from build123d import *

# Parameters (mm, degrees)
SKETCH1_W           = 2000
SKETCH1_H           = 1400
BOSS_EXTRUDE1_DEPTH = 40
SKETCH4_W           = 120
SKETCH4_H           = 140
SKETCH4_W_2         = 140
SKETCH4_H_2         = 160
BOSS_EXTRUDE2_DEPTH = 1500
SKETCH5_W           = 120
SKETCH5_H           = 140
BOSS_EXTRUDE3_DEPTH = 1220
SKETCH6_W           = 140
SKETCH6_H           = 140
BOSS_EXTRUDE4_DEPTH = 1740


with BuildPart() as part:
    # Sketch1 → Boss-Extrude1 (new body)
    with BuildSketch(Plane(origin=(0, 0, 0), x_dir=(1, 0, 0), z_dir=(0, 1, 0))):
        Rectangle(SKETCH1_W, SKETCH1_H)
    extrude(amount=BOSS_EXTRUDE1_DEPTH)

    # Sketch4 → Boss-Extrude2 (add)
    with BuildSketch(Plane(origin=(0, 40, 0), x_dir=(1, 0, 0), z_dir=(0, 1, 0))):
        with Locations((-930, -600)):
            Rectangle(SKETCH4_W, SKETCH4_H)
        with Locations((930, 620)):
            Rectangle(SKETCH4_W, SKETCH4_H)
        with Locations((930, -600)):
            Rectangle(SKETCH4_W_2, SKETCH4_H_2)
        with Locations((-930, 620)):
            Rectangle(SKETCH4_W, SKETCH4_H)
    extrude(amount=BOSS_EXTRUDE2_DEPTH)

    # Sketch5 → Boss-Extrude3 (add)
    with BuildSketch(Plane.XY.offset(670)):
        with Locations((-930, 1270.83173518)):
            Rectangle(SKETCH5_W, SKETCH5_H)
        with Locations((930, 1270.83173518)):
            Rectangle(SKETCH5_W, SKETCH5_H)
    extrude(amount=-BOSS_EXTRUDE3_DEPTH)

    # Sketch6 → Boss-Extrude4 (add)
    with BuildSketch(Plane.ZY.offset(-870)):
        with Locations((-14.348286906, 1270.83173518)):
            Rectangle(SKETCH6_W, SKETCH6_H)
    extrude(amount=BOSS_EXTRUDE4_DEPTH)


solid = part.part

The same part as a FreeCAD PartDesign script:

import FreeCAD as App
import Part
import Sketcher

V = App.Vector
Q = App.Units.Quantity


def add_polygon(sketch, points):
    """Adds a closed chain of lines whose ends are joined by coincident constraints."""
    first, n = sketch.GeometryCount, len(points)
    for a, b in zip(points, points[1:] + points[:1]):
        sketch.addGeometry(Part.LineSegment(App.Vector(*a, 0), App.Vector(*b, 0)), False)
    for i in range(n):
        sketch.addConstraint(Sketcher.Constraint("Coincident", first + i, 2, first + (i + 1) % n, 1))

doc = App.newDocument("Part")
body = doc.addObject("PartDesign::Body", "Body")

# Sketch on XZ plane
sketch1 = body.newObject("Sketcher::SketchObject", "Sketch")
sketch1.AttachmentSupport = (doc.getObject("XZ_Plane"), [""])
sketch1.MapMode = "FlatFace"
add_polygon(sketch1, [(-1000, -700), (-1000, 700), (1000, 700), (1000, -700)])  # lines 0-3
sketch1.addConstraint(Sketcher.Constraint("Vertical", 0))
sketch1.addConstraint(Sketcher.Constraint("Horizontal", 1))
sketch1.addConstraint(Sketcher.Constraint("Vertical", 2))
sketch1.addConstraint(Sketcher.Constraint("Horizontal", 3))
sketch1.addConstraint(Sketcher.Constraint("Symmetric", 0, 2, 2, 2, -1, 1))
sketch1.addConstraint(Sketcher.Constraint("DistanceX", 1, 1, 1, 2, Q("2000 mm")))
sketch1.addConstraint(Sketcher.Constraint("DistanceY", 0, 1, 0, 2, Q("1400 mm")))
pad1 = body.newObject("PartDesign::Pad", "Pad")
pad1.Profile = sketch1
pad1.Length = 40
pad1.Reversed = True

# Sketch on XZ plane
sketch2 = body.newObject("Sketcher::SketchObject", "Sketch001")
sketch2.AttachmentSupport = (doc.getObject("XZ_Plane"), [""])
sketch2.MapMode = "FlatFace"
sketch2.AttachmentOffset = App.Placement(V(0, 0, -40), App.Rotation())
add_polygon(sketch2, [(-990, 530), (-990, 670), (-870, 670), (-870, 530)])  # lines 0-3
add_polygon(sketch2, [(870, -690), (870, -550), (990, -550), (990, -690)])  # lines 4-7
add_polygon(sketch2, [(860, 520), (860, 680), (1000, 680), (1000, 520)])  # lines 8-11
add_polygon(sketch2, [(-990, -690), (-990, -550), (-870, -550), (-870, -690)])  # lines 12-15
sketch2.addConstraint(Sketcher.Constraint("Vertical", 0))
sketch2.addConstraint(Sketcher.Constraint("Horizontal", 1))
sketch2.addConstraint(Sketcher.Constraint("Vertical", 2))
sketch2.addConstraint(Sketcher.Constraint("Horizontal", 3))
sketch2.addConstraint(Sketcher.Constraint("Vertical", 4))
sketch2.addConstraint(Sketcher.Constraint("Horizontal", 5))
sketch2.addConstraint(Sketcher.Constraint("Vertical", 6))
sketch2.addConstraint(Sketcher.Constraint("Horizontal", 7))
sketch2.addConstraint(Sketcher.Constraint("Vertical", 8))
sketch2.addConstraint(Sketcher.Constraint("Horizontal", 9))
sketch2.addConstraint(Sketcher.Constraint("Vertical", 10))
sketch2.addConstraint(Sketcher.Constraint("Horizontal", 11))
sketch2.addConstraint(Sketcher.Constraint("Vertical", 12))
sketch2.addConstraint(Sketcher.Constraint("Horizontal", 13))
sketch2.addConstraint(Sketcher.Constraint("Vertical", 14))
sketch2.addConstraint(Sketcher.Constraint("Horizontal", 15))
sketch2.addConstraint(Sketcher.Constraint("Symmetric", 5, 2, 12, 2, -2))
sketch2.addConstraint(Sketcher.Constraint("Symmetric", 7, 2, 14, 2, -2))
sketch2.addConstraint(Sketcher.Constraint("Vertical", 3, 2, 12, 2))
sketch2.addConstraint(Sketcher.Constraint("Vertical", 2, 2, 13, 2))
sketch2.addConstraint(Sketcher.Constraint("Equal", 11, 0))
sketch2.addConstraint(Sketcher.Constraint("Equal", 2, 4))
sketch2.addConstraint(Sketcher.Constraint("DistanceX", 1, 1, 1, 2, Q("120 mm")))
sketch2.addConstraint(Sketcher.Constraint("DistanceX", 9, 1, 9, 2, Q("140 mm")))
sketch2.addConstraint(Sketcher.Constraint("DistanceY", 8, 1, 8, 2, Q("160 mm")))
sketch2.addConstraint(Sketcher.Constraint("DistanceX", 0, 2, -1, 1, Q("990 mm")))
sketch2.addConstraint(Sketcher.Constraint("DistanceY", -1, 1, 0, 2, Q("670 mm")))
sketch2.addConstraint(Sketcher.Constraint("DistanceY", 4, 2, -1, 1, Q("550 mm")))
sketch2.addConstraint(Sketcher.Constraint("DistanceX", -1, 1, 8, 2, Q("860 mm")))
sketch2.addConstraint(Sketcher.Constraint("DistanceY", -1, 1, 8, 2, Q("680 mm")))
pad2 = body.newObject("PartDesign::Pad", "Pad001")
pad2.Profile = sketch2
pad2.Length = 1500
pad2.Reversed = True

# Sketch on XY plane
sketch3 = body.newObject("Sketcher::SketchObject", "Sketch002")
sketch3.AttachmentSupport = (doc.getObject("XY_Plane"), [""])
sketch3.MapMode = "FlatFace"
sketch3.AttachmentOffset = App.Placement(V(0, 0, 670), App.Rotation())
add_polygon(sketch3, [(-990, 1341), (-990, 1201), (-870, 1201), (-870, 1341)])  # lines 0-3
add_polygon(sketch3, [(870, 1341), (870, 1201), (990, 1201), (990, 1341)])  # lines 4-7
sketch3.addConstraint(Sketcher.Constraint("Vertical", 0))
sketch3.addConstraint(Sketcher.Constraint("Horizontal", 1))
sketch3.addConstraint(Sketcher.Constraint("Vertical", 2))
sketch3.addConstraint(Sketcher.Constraint("Horizontal", 3))
sketch3.addConstraint(Sketcher.Constraint("Vertical", 4))
sketch3.addConstraint(Sketcher.Constraint("Horizontal", 5))
sketch3.addConstraint(Sketcher.Constraint("Vertical", 6))
sketch3.addConstraint(Sketcher.Constraint("Horizontal", 7))
sketch3.addConstraint(Sketcher.Constraint("Symmetric", 1, 2, 4, 2, -2))
sketch3.addConstraint(Sketcher.Constraint("Symmetric", 3, 2, 6, 2, -2))
sketch3.addConstraint(Sketcher.Constraint("DistanceX", 1, 1, 1, 2, Q("120 mm")))
sketch3.addConstraint(Sketcher.Constraint("DistanceY", 0, 2, 0, 1, Q("140 mm")))
sketch3.addConstraint(Sketcher.Constraint("DistanceX", 0, 2, -1, 1, Q("990 mm")))
sketch3.addConstraint(Sketcher.Constraint("DistanceY", -1, 1, 0, 2, Q("1200.831735 mm")))
pad3 = body.newObject("PartDesign::Pad", "Pad002")
pad3.Profile = sketch3
pad3.Length = 1220
pad3.Reversed = True

# Sketch on YZ plane
sketch4 = body.newObject("Sketcher::SketchObject", "Sketch003")
sketch4.AttachmentSupport = (doc.getObject("YZ_Plane"), [""])
sketch4.MapMode = "FlatFace"
sketch4.AttachmentOffset = App.Placement(V(0, 0, 870), App.Rotation())
add_polygon(sketch4, [(1341, -84), (1201, -84), (1201, 56), (1341, 56)])  # lines 0-3
sketch4.addConstraint(Sketcher.Constraint("Horizontal", 0))
sketch4.addConstraint(Sketcher.Constraint("Vertical", 1))
sketch4.addConstraint(Sketcher.Constraint("Horizontal", 2))
sketch4.addConstraint(Sketcher.Constraint("Vertical", 3))
sketch4.addConstraint(Sketcher.Constraint("Equal", 2, 1))
sketch4.addConstraint(Sketcher.Constraint("DistanceX", 0, 2, 0, 1, Q("140 mm")))
sketch4.addConstraint(Sketcher.Constraint("DistanceX", -1, 1, 0, 2, Q("1200.831735 mm")))
sketch4.addConstraint(Sketcher.Constraint("DistanceY", 0, 2, -1, 1, Q("84.348287 mm")))
pad4 = body.newObject("PartDesign::Pad", "Pad003")
pad4.Profile = sketch4
pad4.Length = 1740
pad4.Reversed = True

doc.recompute()
